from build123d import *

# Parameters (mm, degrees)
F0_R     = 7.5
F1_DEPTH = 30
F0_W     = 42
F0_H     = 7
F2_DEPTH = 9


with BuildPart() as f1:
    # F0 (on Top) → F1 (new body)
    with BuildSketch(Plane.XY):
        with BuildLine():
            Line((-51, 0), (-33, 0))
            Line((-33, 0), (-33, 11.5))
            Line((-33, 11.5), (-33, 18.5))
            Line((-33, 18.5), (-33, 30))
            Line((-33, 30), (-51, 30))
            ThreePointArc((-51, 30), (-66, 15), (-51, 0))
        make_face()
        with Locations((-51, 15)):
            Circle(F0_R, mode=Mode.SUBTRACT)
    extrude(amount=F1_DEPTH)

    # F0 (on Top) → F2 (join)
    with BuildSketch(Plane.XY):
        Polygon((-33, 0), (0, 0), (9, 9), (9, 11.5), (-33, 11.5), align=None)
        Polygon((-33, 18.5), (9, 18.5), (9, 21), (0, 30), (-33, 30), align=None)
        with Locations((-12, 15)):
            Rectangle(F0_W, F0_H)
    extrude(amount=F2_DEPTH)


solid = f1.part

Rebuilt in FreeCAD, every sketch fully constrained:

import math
import FreeCAD as App
import Part
import Sketcher

V = App.Vector


def add_polygon(sketch, points):
    """Adds a closed chain of lines whose ends are joined by coincident constraints."""
    first, n = sketch.GeometryCount, len(points)
    for a, b in zip(points, points[1:] + points[:1]):
        sketch.addGeometry(Part.LineSegment(App.Vector(*a, 0), App.Vector(*b, 0)), False)
    for i in range(n):
        sketch.addConstraint(Sketcher.Constraint("Coincident", first + i, 2, first + (i + 1) % n, 1))

doc = App.newDocument("Part")
body = doc.addObject("PartDesign::Body", "Body")

# Sketch on XY plane
sketch1 = body.newObject("Sketcher::SketchObject", "Sketch")
sketch1.AttachmentSupport = (doc.getObject("XY_Plane"), [""])
sketch1.MapMode = "FlatFace"
sketch1.addGeometry([
    Part.LineSegment(V(-51, 0, 0), V(-33, 0, 0)),  # 0
    Part.LineSegment(V(-33, 0, 0), V(-33, 30, 0)),  # 1
    Part.LineSegment(V(-33, 30, 0), V(-51, 30, 0)),  # 2
    Part.ArcOfCircle(Part.Circle(V(-51, 15, 0), V(0, 0, 1), 15), math.radians(90), math.radians(270)),  # 3
    Part.Circle(V(-51, 15, 0), V(0, 0, 1), 8),  # 4
], False)
sketch1.addConstraint([
    Sketcher.Constraint("Coincident", 0, 2, 1, 1),
    Sketcher.Constraint("Coincident", 1, 2, 2, 1),
    Sketcher.Constraint("Tangent", 2, 2, 3, 1),
    Sketcher.Constraint("Tangent", 3, 2, 0, 1),
    Sketcher.Constraint("Horizontal", 0),
    Sketcher.Constraint("Vertical", 1),
    Sketcher.Constraint("Horizontal", 2),
    Sketcher.Constraint("Coincident", 4, 3, 3, 3),
    Sketcher.Constraint("PointOnObject", 0, 2, -1),
    Sketcher.Constraint("Diameter", 4, 15.0),
    Sketcher.Constraint("Radius", 3, 15.0),
    Sketcher.Constraint("DistanceX", 0, 1, 0, 2, 18.0),
    Sketcher.Constraint("DistanceX", 3, 3, -1, 1, 51.0),
])
pad1 = body.newObject("PartDesign::Pad", "Pad")
pad1.Profile = sketch1
pad1.Length = 30

# Sketch on XY plane
sketch2 = body.newObject("Sketcher::SketchObject", "Sketch001")
sketch2.AttachmentSupport = (doc.getObject("XY_Plane"), [""])
sketch2.MapMode = "FlatFace"
add_polygon(sketch2, [(-33, 0), (0, 0), (9, 9), (9, 21), (0, 30), (-33, 30)])  # lines 0-5
sketch2.addConstraint([
    Sketcher.Constraint("Horizontal", 0),
    Sketcher.Constraint("Vertical", 2),
    Sketcher.Constraint("Horizontal", 4),
    Sketcher.Constraint("Vertical", 5),
    Sketcher.Constraint("Coincident", 0, 2, -1, 1),
    Sketcher.Constraint("PointOnObject", 3, 2, -2),
    Sketcher.Constraint("Perpendicular", 1, 3),
    Sketcher.Constraint("Equal", 1, 3),
    Sketcher.Constraint("DistanceX", 0, 1, 0, 2, 33.0),
    Sketcher.Constraint("DistanceY", 2, 1, 2, 2, 12.0),
    Sketcher.Constraint("DistanceY", 5, 2, 5, 1, 30.0),
])
pad2 = body.newObject("PartDesign::Pad", "Pad001")
pad2.Profile = sketch2
pad2.Length = 9

doc.recompute()
